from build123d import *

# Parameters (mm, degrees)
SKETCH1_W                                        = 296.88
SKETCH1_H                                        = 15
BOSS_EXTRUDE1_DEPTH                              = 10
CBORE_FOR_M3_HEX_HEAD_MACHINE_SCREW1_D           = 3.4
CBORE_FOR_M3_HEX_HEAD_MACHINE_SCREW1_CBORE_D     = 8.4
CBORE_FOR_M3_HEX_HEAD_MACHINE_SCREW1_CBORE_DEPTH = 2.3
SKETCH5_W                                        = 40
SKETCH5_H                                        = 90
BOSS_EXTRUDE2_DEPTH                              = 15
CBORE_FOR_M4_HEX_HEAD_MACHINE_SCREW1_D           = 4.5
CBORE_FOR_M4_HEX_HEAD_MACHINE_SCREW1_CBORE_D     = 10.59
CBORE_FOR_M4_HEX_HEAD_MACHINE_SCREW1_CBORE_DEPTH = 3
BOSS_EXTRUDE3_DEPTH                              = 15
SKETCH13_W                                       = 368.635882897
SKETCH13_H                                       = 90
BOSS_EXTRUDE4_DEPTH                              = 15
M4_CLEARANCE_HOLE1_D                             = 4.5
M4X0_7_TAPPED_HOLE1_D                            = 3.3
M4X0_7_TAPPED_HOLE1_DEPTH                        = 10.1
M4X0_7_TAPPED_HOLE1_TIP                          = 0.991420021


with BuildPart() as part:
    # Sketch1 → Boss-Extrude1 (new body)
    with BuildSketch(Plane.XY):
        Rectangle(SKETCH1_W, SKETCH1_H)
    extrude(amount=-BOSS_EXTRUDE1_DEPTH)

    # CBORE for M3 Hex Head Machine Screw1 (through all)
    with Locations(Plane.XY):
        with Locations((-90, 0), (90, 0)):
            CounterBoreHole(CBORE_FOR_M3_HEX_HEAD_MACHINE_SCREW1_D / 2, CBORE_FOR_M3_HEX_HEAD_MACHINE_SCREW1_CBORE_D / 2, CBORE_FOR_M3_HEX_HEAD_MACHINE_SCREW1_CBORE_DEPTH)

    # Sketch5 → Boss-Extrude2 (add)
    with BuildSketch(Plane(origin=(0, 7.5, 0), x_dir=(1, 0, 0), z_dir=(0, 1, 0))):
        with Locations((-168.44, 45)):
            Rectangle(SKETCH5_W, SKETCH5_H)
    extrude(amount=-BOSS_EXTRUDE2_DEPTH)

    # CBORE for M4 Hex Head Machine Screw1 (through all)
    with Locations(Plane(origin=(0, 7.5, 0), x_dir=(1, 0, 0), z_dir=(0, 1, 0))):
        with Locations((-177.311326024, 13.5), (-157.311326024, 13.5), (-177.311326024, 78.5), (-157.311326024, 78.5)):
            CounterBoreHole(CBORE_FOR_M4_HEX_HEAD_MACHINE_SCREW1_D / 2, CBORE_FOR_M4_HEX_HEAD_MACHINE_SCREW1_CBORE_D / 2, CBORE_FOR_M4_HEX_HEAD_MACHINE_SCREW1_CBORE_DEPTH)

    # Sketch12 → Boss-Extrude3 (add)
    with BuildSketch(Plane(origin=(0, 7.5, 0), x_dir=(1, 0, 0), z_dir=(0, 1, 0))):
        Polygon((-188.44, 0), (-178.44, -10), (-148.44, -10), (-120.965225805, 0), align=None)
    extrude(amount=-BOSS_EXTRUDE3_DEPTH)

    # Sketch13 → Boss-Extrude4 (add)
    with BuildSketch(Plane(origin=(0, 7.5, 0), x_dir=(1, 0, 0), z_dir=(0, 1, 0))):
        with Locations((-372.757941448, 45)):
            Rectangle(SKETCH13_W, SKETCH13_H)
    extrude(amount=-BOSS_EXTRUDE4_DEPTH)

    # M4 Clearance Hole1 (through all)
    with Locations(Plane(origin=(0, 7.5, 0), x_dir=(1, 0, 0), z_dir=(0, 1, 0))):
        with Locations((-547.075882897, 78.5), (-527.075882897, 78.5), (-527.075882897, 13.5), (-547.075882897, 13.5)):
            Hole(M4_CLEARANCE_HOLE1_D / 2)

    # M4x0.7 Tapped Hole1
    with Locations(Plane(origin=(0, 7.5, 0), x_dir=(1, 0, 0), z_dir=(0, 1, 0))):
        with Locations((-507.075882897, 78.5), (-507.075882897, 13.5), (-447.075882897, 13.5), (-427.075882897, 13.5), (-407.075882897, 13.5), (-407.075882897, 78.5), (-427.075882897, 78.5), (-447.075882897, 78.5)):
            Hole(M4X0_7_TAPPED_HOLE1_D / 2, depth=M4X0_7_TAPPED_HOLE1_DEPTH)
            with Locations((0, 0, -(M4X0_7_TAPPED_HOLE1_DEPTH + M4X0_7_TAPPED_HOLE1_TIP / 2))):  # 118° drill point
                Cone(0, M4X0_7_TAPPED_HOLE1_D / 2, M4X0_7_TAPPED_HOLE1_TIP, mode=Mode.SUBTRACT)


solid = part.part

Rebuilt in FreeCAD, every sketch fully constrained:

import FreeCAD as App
import Part
import Sketcher
Q = App.Units.Quantity


def add_polygon(sketch, points):
    """Adds a closed chain of lines whose ends are joined by coincident constraints."""
    first, n = sketch.GeometryCount, len(points)
    for a, b in zip(points, points[1:] + points[:1]):
        sketch.addGeometry(Part.LineSegment(App.Vector(*a, 0), App.Vector(*b, 0)), False)
    for i in range(n):
        sketch.addConstraint(Sketcher.Constraint("Coincident", first + i, 2, first + (i + 1) % n, 1))

doc = App.newDocument("Part")
body = doc.addObject("PartDesign::Body", "Body")

# Sketch on XY plane
sketch1 = doc.addObject("Sketcher::SketchObject", "Sketch")
body.addObject(sketch1)
sketch1.AttachmentSupport = (doc.XY_Plane, [""])
sketch1.MapMode = "FlatFace"
add_polygon(sketch1, [(-148, 8), (-148, -8), (148, -8), (148, 8)])  # lines 0-3
sketch1.addConstraint(Sketcher.Constraint("Vertical", 0))
sketch1.addConstraint(Sketcher.Constraint("Horizontal", 1))
sketch1.addConstraint(Sketcher.Constraint("Vertical", 2))
sketch1.addConstraint(Sketcher.Constraint("Horizontal", 3))
sketch1.addConstraint(Sketcher.Constraint("Symmetric", 0, 2, 2, 2, -1, 1))
sketch1.addConstraint(Sketcher.Constraint("DistanceY", 0, 2, 0, 1, 15.0))
sketch1.addConstraint(Sketcher.Constraint("DistanceX", 1, 1, 1, 2, 296.88))
pad1 = doc.addObject("PartDesign::Pad", "Pad")
body.addObject(pad1)
pad1.Profile = sketch1
pad1.Length = 10
pad1.Reversed = True

# Sketch on XY plane
sketch2 = doc.addObject("Sketcher::SketchObject", "Sketch001")
body.addObject(sketch2)
sketch2.AttachmentSupport = (doc.XY_Plane, [""])
sketch2.MapMode = "FlatFace"
sketch2.addGeometry(Part.Circle(App.Vector(-90, 0, 0), App.Vector(0, 0, 1), 1.7), False)
sketch2.addGeometry(Part.Circle(App.Vector(90, 0, 0), App.Vector(0, 0, 1), 1.7), False)
sketch2.addConstraint(Sketcher.Constraint("Equal", 0, 1))
sketch2.addConstraint(Sketcher.Constraint("Symmetric", 0, 3, 1, 3, -1, 1))
sketch2.addConstraint(Sketcher.Constraint("PointOnObject", 0, 3, -1))
sketch2.addConstraint(Sketcher.Constraint("Diameter", 0, 3.4))
sketch2.addConstraint(Sketcher.Constraint("DistanceX", 0, 3, -1, 1, 90.0))
doc.recompute()
hole = doc.addObject("PartDesign::Hole", "Hole")
body.addObject(hole)
hole.Profile = sketch2
hole.ThreadType = "None"
hole.Diameter = 3.4
hole.DepthType = "ThroughAll"
hole.HoleCutType = "Counterbore"
hole.HoleCutDiameter = 8.4
hole.HoleCutDepth = 2.3

# Sketch on XZ plane
sketch3 = doc.addObject("Sketcher::SketchObject", "Sketch002")
body.addObject(sketch3)
sketch3.AttachmentSupport = (doc.XZ_Plane, [""])
sketch3.MapMode = "FlatFace"
sketch3.AttachmentOffset = App.Placement(App.Vector(0, 0, -7.5), App.Rotation())
add_polygon(sketch3, [(-188, -90), (-188, 0), (-148, 0), (-148, -90)])  # lines 0-3
sketch3.addConstraint(Sketcher.Constraint("Vertical", 0))
sketch3.addConstraint(Sketcher.Constraint("Horizontal", 1))
sketch3.addConstraint(Sketcher.Constraint("Vertical", 2))
sketch3.addConstraint(Sketcher.Constraint("Horizontal", 3))
sketch3.addConstraint(Sketcher.Constraint("PointOnObject", 0, 2, -1))
sketch3.addConstraint(Sketcher.Constraint("DistanceX", 1, 1, 1, 2, 40.0))
sketch3.addConstraint(Sketcher.Constraint("DistanceY", 0, 1, 0, 2, 90.0))
sketch3.addConstraint(Sketcher.Constraint("DistanceX", 0, 2, -1, 1, 188.44))
pad2 = doc.addObject("PartDesign::Pad", "Pad001")
body.addObject(pad2)
pad2.Profile = sketch3
pad2.Length = 15

# Sketch on XZ plane
sketch4 = doc.addObject("Sketcher::SketchObject", "Sketch003")
body.addObject(sketch4)
sketch4.AttachmentSupport = (doc.XZ_Plane, [""])
sketch4.MapMode = "FlatFace"
sketch4.AttachmentOffset = App.Placement(App.Vector(0, 0, -7.5), App.Rotation())
sketch4.addGeometry(Part.Circle(App.Vector(-177.3, -13.5, 0), App.Vector(0, 0, 1), 2.2), False)
sketch4.addGeometry(Part.Circle(App.Vector(-157.3, -13.5, 0), App.Vector(0, 0, 1), 2.2), False)
sketch4.addGeometry(Part.Circle(App.Vector(-177.3, -78.5, 0), App.Vector(0, 0, 1), 2.2), False)
sketch4.addGeometry(Part.Circle(App.Vector(-157.3, -78.5, 0), App.Vector(0, 0, 1), 2.2), False)
sketch4.addConstraint(Sketcher.Constraint("Equal", 0, 1))
sketch4.addConstraint(Sketcher.Constraint("Equal", 1, 2))
sketch4.addConstraint(Sketcher.Constraint("Equal", 2, 3))
sketch4.addConstraint(Sketcher.Constraint("Horizontal", 0, 3, 1, 3))
sketch4.addConstraint(Sketcher.Constraint("Horizontal", 2, 3, 3, 3))
sketch4.addConstraint(Sketcher.Constraint("Vertical", 0, 3, 2, 3))
sketch4.addConstraint(Sketcher.Constraint("Vertical", 1, 3, 3, 3))
sketch4.addConstraint(Sketcher.Constraint("Diameter", 0, 4.5))
sketch4.addConstraint(Sketcher.Constraint("DistanceX", 0, 3, 1, 3, 20.0))
sketch4.addConstraint(Sketcher.Constraint("DistanceY", 2, 3, 0, 3, 65.0))
sketch4.addConstraint(Sketcher.Constraint("DistanceY", 0, 3, -1, 1, 13.5))
sketch4.addConstraint(Sketcher.Constraint("DistanceX", 0, 3, -1, 1, 177.311326))
doc.recompute()
hole2 = doc.addObject("PartDesign::Hole", "Hole001")
body.addObject(hole2)
hole2.Profile = sketch4
hole2.ThreadType = "None"
hole2.Diameter = 4.5
hole2.DepthType = "ThroughAll"
hole2.HoleCutType = "Counterbore"
hole2.HoleCutDiameter = 10.59
hole2.HoleCutDepth = 3
hole2.Reversed = True

# Sketch on XZ plane
sketch5 = doc.addObject("Sketcher::SketchObject", "Sketch004")
body.addObject(sketch5)
sketch5.AttachmentSupport = (doc.XZ_Plane, [""])
sketch5.MapMode = "FlatFace"
sketch5.AttachmentOffset = App.Placement(App.Vector(0, 0, -7.5), App.Rotation())
add_polygon(sketch5, [(-188, 0), (-178, 10), (-148, 10), (-121, 0)])  # lines 0-3
sketch5.addConstraint(Sketcher.Constraint("Horizontal", 1))
sketch5.addConstraint(Sketcher.Constraint("Horizontal", 3))
sketch5.addConstraint(Sketcher.Constraint("PointOnObject", 2, 2, -1))
sketch5.addConstraint(Sketcher.Constraint("DistanceX", 1, 1, 1, 2, 30.0))
sketch5.addConstraint(Sketcher.Constraint("Angle", 0, Q("45 deg")))
sketch5.addConstraint(Sketcher.Constraint("Angle", 2, Q("-20 deg")))
sketch5.addConstraint(Sketcher.Constraint("DistanceY", -1, 1, 0, 2, 10.0))
sketch5.addConstraint(Sketcher.Constraint("DistanceX", 0, 2, -1, 1, 178.44))
pad3 = doc.addObject("PartDesign::Pad", "Pad002")
body.addObject(pad3)
pad3.Profile = sketch5
pad3.Length = 15

# Sketch on XZ plane
sketch6 = doc.addObject("Sketcher::SketchObject", "Sketch005")
body.addObject(sketch6)
sketch6.AttachmentSupport = (doc.XZ_Plane, [""])
sketch6.MapMode = "FlatFace"
sketch6.AttachmentOffset = App.Placement(App.Vector(0, 0, -7.5), App.Rotation())
add_polygon(sketch6, [(-557, -90), (-557, 0), (-188, 0), (-188, -90)])  # lines 0-3
sketch6.addConstraint(Sketcher.Constraint("Vertical", 0))
sketch6.addConstraint(Sketcher.Constraint("Horizontal", 1))
sketch6.addConstraint(Sketcher.Constraint("Vertical", 2))
sketch6.addConstraint(Sketcher.Constraint("Horizontal", 3))
sketch6.addConstraint(Sketcher.Constraint("PointOnObject", 0, 2, -1))
sketch6.addConstraint(Sketcher.Constraint("DistanceY", 0, 1, 0, 2, 90.0))
sketch6.addConstraint(Sketcher.Constraint("DistanceX", 1, 2, -1, 1, 188.44))
sketch6.addConstraint(Sketcher.Constraint("DistanceX", 1, 1, 1, 2, 368.635883))
pad4 = doc.addObject("PartDesign::Pad", "Pad003")
body.addObject(pad4)
pad4.Profile = sketch6
pad4.Length = 15

# Sketch on XZ plane
sketch7 = doc.addObject("Sketcher::SketchObject", "Sketch006")
body.addObject(sketch7)
sketch7.AttachmentSupport = (doc.XZ_Plane, [""])
sketch7.MapMode = "FlatFace"
sketch7.AttachmentOffset = App.Placement(App.Vector(0, 0, -7.5), App.Rotation())
sketch7.addGeometry(Part.Circle(App.Vector(-547.1, -78.5, 0), App.Vector(0, 0, 1), 2.2), False)
sketch7.addGeometry(Part.Circle(App.Vector(-527.1, -78.5, 0), App.Vector(0, 0, 1), 2.2), False)
sketch7.addGeometry(Part.Circle(App.Vector(-527.1, -13.5, 0), App.Vector(0, 0, 1), 2.2), False)
sketch7.addGeometry(Part.Circle(App.Vector(-547.1, -13.5, 0), App.Vector(0, 0, 1), 2.2), False)
sketch7.addConstraint(Sketcher.Constraint("Equal", 0, 1))
sketch7.addConstraint(Sketcher.Constraint("Equal", 1, 2))
sketch7.addConstraint(Sketcher.Constraint("Equal", 2, 3))
sketch7.addConstraint(Sketcher.Constraint("Horizontal", 0, 3, 1, 3))
sketch7.addConstraint(Sketcher.Constraint("Horizontal", 2, 3, 3, 3))
sketch7.addConstraint(Sketcher.Constraint("Vertical", 1, 3, 2, 3))
sketch7.addConstraint(Sketcher.Constraint("Vertical", 0, 3, 3, 3))
sketch7.addConstraint(Sketcher.Constraint("Diameter", 0, 4.5))
sketch7.addConstraint(Sketcher.Constraint("DistanceX", 0, 3, 1, 3, 20.0))
sketch7.addConstraint(Sketcher.Constraint("DistanceY", 1, 3, 2, 3, 65.0))
sketch7.addConstraint(Sketcher.Constraint("DistanceY", 0, 3, -1, 1, 78.5))
sketch7.addConstraint(Sketcher.Constraint("DistanceX", 0, 3, -1, 1, 547.075883))
doc.recompute()
hole3 = doc.addObject("PartDesign::Hole", "Hole002")
body.addObject(hole3)
hole3.Profile = sketch7
hole3.ThreadType = "None"
hole3.Diameter = 4.5
hole3.DepthType = "ThroughAll"
hole3.Reversed = True

# Sketch on XZ plane
sketch8 = doc.addObject("Sketcher::SketchObject", "Sketch007")
body.addObject(sketch8)
sketch8.AttachmentSupport = (doc.XZ_Plane, [""])
sketch8.MapMode = "FlatFace"
sketch8.AttachmentOffset = App.Placement(App.Vector(0, 0, -7.5), App.Rotation())
sketch8.addGeometry(Part.Circle(App.Vector(-507.1, -78.5, 0), App.Vector(0, 0, 1), 1.6), False)
sketch8.addGeometry(Part.Circle(App.Vector(-507.1, -13.5, 0), App.Vector(0, 0, 1), 1.6), False)
sketch8.addGeometry(Part.Circle(App.Vector(-447.1, -13.5, 0), App.Vector(0, 0, 1), 1.6), False)
sketch8.addGeometry(Part.Circle(App.Vector(-427.1, -13.5, 0), App.Vector(0, 0, 1), 1.6), False)
sketch8.addGeometry(Part.Circle(App.Vector(-407.1, -13.5, 0), App.Vector(0, 0, 1), 1.6), False)
sketch8.addGeometry(Part.Circle(App.Vector(-407.1, -78.5, 0), App.Vector(0, 0, 1), 1.6), False)
sketch8.addGeometry(Part.Circle(App.Vector(-427.1, -78.5, 0), App.Vector(0, 0, 1), 1.6), False)
sketch8.addGeometry(Part.Circle(App.Vector(-447.1, -78.5, 0), App.Vector(0, 0, 1), 1.6), False)
sketch8.addConstraint(Sketcher.Constraint("Equal", 0, 1))
sketch8.addConstraint(Sketcher.Constraint("Equal", 1, 2))
sketch8.addConstraint(Sketcher.Constraint("Equal", 2, 3))
sketch8.addConstraint(Sketcher.Constraint("Equal", 3, 4))
sketch8.addConstraint(Sketcher.Constraint("Equal", 4, 5))
sketch8.addConstraint(Sketcher.Constraint("Equal", 5, 6))
sketch8.addConstraint(Sketcher.Constraint("Equal", 6, 7))
sketch8.addConstraint(Sketcher.Constraint("Horizontal", 1, 3, 2, 3))
sketch8.addConstraint(Sketcher.Constraint("Horizontal", 2, 3, 3, 3))
sketch8.addConstraint(Sketcher.Constraint("Horizontal", 3, 3, 4, 3))
sketch8.addConstraint(Sketcher.Constraint("Horizontal", 0, 3, 5, 3))
sketch8.addConstraint(Sketcher.Constraint("Horizontal", 5, 3, 6, 3))
sketch8.addConstraint(Sketcher.Constraint("Horizontal", 6, 3, 7, 3))
sketch8.addConstraint(Sketcher.Constraint("Vertical", 0, 3, 1, 3))
sketch8.addConstraint(Sketcher.Constraint("Vertical", 4, 3, 5, 3))
sketch8.addConstraint(Sketcher.Constraint("Vertical", 3, 3, 6, 3))
sketch8.addConstraint(Sketcher.Constraint("Vertical", 2, 3, 7, 3))
sketch8.addConstraint(Sketcher.Constraint("Diameter", 0, 3.3))
sketch8.addConstraint(Sketcher.Constraint("DistanceY", 0, 3, 1, 3, 65.0))
sketch8.addConstraint(Sketcher.Constraint("DistanceX", 1, 3, 2, 3, 60.0))
sketch8.addConstraint(Sketcher.Constraint("DistanceX", 2, 3, 3, 3, 20.0))
sketch8.addConstraint(Sketcher.Constraint("DistanceX", 3, 3, 4, 3, 20.0))
sketch8.addConstraint(Sketcher.Constraint("DistanceY", 0, 3, -1, 1, 78.5))
sketch8.addConstraint(Sketcher.Constraint("DistanceX", 0, 3, -1, 1, 507.075883))
doc.recompute()
hole4 = doc.addObject("PartDesign::Hole", "Hole003")
body.addObject(hole4)
hole4.Profile = sketch8
hole4.ThreadType = "None"
hole4.Diameter = 3.3
hole4.DepthType = "Dimension"
hole4.Depth = 10.1
hole4.DrillPoint = "Angled"
hole4.DrillPointAngle = 118
hole4.Reversed = True

doc.recompute()
